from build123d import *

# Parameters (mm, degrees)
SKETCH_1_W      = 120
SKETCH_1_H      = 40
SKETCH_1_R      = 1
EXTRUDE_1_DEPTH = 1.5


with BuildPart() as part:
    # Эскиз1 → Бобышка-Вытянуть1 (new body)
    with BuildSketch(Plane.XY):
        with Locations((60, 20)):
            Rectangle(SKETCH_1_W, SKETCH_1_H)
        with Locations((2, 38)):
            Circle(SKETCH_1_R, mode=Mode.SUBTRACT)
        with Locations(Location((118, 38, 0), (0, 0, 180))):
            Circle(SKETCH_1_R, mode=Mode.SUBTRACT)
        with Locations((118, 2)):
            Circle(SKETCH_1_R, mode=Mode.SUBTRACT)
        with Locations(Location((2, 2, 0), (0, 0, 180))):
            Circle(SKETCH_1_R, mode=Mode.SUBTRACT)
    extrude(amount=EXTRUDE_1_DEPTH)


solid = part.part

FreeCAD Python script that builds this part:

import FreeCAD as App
import Part
import Sketcher
from FreeCAD import Vector
Q = App.Units.Quantity

doc = App.newDocument("Part")
body = doc.addObject("PartDesign::Body", "Body")

sketch1 = body.newObject("Sketcher::SketchObject", "Sketch")
sketch1.AttachmentSupport = (doc.getObject("XY_Plane"), [""])
sketch1.MapMode = "FlatFace"
sketch1.addGeometry([
    Part.LineSegment(Vector(0, 40, 0), Vector(0, 0, 0)),
    Part.LineSegment(Vector(0, 0, 0), Vector(120, 0, 0)),
    Part.LineSegment(Vector(120, 0, 0), Vector(120, 40, 0)),
    Part.LineSegment(Vector(120, 40, 0), Vector(0, 40, 0)),
    Part.Circle(Vector(2, 2, 0), Vector(0, 0, 1), 1),
    Part.Circle(Vector(118, 2, 0), Vector(0, 0, 1), 1),
    Part.Circle(Vector(2, 38, 0), Vector(0, 0, 1), 1),
    Part.Circle(Vector(118, 38, 0), Vector(0, 0, 1), 1),
], False)
sketch1.addConstraint([
    Sketcher.Constraint("Coincident", 0, 2, 1, 1),
    Sketcher.Constraint("Coincident", 1, 2, 2, 1),
    Sketcher.Constraint("Coincident", 2, 2, 3, 1),
    Sketcher.Constraint("Coincident", 3, 2, 0, 1),
    Sketcher.Constraint("Vertical", 0),
    Sketcher.Constraint("Horizontal", 1),
    Sketcher.Constraint("Vertical", 2),
    Sketcher.Constraint("Horizontal", 3),
    Sketcher.Constraint("Coincident", 0, 2, -1, 1),
    Sketcher.Constraint("Equal", 4, 5),
    Sketcher.Constraint("Equal", 5, 6),
    Sketcher.Constraint("Equal", 6, 7),
    Sketcher.Constraint("Horizontal", 4, 3, 5, 3),
    Sketcher.Constraint("Horizontal", 6, 3, 7, 3),
    Sketcher.Constraint("Vertical", 4, 3, 6, 3),
    Sketcher.Constraint("Vertical", 5, 3, 7, 3),
    Sketcher.Constraint("Diameter", 4, Q("2 mm")),
    Sketcher.Constraint("DistanceX", 1, 1, 1, 2, Q("120 mm")),
    Sketcher.Constraint("DistanceY", 0, 2, 0, 1, Q("40 mm")),
    Sketcher.Constraint("DistanceX", -1, 1, 4, 3, Q("2 mm")),
    Sketcher.Constraint("DistanceY", -1, 1, 4, 3, Q("2 mm")),
    Sketcher.Constraint("DistanceX", -1, 1, 5, 3, Q("118 mm")),
    Sketcher.Constraint("DistanceY", -1, 1, 6, 3, Q("38 mm")),
])
pad1 = body.newObject("PartDesign::Pad", "Pad")
pad1.Profile = sketch1
pad1.Length = 1.5

doc.recompute()
